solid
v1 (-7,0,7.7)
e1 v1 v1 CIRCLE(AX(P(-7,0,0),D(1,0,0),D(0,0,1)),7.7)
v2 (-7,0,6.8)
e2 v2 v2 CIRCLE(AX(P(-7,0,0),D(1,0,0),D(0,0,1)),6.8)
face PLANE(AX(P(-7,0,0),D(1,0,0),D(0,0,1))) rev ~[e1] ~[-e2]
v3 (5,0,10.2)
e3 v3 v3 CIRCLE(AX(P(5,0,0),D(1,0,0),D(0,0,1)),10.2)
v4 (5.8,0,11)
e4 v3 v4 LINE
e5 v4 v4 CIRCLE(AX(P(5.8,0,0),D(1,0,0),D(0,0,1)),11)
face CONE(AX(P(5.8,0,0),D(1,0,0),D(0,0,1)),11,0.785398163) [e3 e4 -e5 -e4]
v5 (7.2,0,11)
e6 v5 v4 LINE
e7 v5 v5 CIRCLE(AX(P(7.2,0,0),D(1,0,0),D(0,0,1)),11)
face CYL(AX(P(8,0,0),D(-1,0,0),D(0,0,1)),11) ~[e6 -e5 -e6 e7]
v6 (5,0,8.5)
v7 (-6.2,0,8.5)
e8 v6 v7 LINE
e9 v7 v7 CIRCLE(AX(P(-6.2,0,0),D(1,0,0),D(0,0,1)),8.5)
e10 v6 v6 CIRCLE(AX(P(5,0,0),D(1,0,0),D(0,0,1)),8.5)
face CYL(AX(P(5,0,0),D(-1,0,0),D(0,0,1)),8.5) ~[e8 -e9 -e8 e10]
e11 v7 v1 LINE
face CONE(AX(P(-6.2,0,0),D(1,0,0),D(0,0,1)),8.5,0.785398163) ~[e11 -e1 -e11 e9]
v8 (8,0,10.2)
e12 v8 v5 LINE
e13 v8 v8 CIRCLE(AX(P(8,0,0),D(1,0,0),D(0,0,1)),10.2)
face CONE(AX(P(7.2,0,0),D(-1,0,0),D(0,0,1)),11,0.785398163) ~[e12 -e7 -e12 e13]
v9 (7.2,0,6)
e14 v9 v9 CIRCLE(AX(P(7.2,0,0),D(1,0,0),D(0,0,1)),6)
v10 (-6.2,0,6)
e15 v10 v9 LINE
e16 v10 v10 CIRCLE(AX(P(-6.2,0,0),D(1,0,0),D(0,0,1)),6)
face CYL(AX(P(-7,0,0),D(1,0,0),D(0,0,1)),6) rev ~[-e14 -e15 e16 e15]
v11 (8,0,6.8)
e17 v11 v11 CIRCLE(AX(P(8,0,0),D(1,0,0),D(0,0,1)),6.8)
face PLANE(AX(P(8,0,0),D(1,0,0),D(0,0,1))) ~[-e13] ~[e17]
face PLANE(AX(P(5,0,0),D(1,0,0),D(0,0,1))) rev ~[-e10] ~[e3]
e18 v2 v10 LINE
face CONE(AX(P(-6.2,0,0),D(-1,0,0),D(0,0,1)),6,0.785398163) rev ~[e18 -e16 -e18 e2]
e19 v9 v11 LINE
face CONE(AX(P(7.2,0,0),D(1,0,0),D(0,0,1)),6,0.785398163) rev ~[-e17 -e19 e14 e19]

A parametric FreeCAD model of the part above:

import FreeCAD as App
import Part
import Sketcher
from FreeCAD import Vector


def edges_at(feature, points):
    """Names of the edges that pass closest to the given points."""
    edges = feature.Shape.Edges
    near = lambda p: min(range(len(edges)), key=lambda i: edges[i].distToShape(Part.Vertex(*p))[0])
    return sorted({f"Edge{near(p) + 1}" for p in points})


def add_polygon(sketch, points):
    """Adds a closed chain of lines whose ends are joined by coincident constraints."""
    first, n = sketch.GeometryCount, len(points)
    for a, b in zip(points, points[1:] + points[:1]):
        sketch.addGeometry(Part.LineSegment(App.Vector(*a, 0), App.Vector(*b, 0)), False)
    for i in range(n):
        sketch.addConstraint(Sketcher.Constraint("Coincident", first + i, 2, first + (i + 1) % n, 1))

doc = App.newDocument("Part")
body = doc.addObject("PartDesign::Body", "Body")

# Sketch on XZ plane
sketch1 = body.newObject("Sketcher::SketchObject", "Sketch")
sketch1.AttachmentSupport = (doc.getObject("XZ_Plane"), [""])
sketch1.MapMode = "FlatFace"
add_polygon(sketch1, [(8, 11), (5, 11), (5, 8.5), (-7, 8.5), (-7, 6), (8, 6)])  # lines 0-5
sketch1.addConstraint(Sketcher.Constraint("Horizontal", 0))
sketch1.addConstraint(Sketcher.Constraint("Vertical", 1))
sketch1.addConstraint(Sketcher.Constraint("Horizontal", 2))
sketch1.addConstraint(Sketcher.Constraint("Vertical", 3))
sketch1.addConstraint(Sketcher.Constraint("Horizontal", 4))
sketch1.addConstraint(Sketcher.Constraint("Vertical", 5))
sketch1.addConstraint(Sketcher.Constraint("Equal", 1, 3))
sketch1.addConstraint(Sketcher.Constraint("DistanceX", 2, 2, -1, 1, 7.0))
sketch1.addConstraint(Sketcher.Constraint("DistanceX", -1, 1, 4, 2, 8.0))
sketch1.addConstraint(Sketcher.Constraint("DistanceX", 0, 2, 0, 1, 3.0))
sketch1.addConstraint(Sketcher.Constraint("DistanceY", 5, 1, 5, 2, 5.0))
sketch1.addConstraint(Sketcher.Constraint("DistanceY", -1, 1, 0, 2, 11.0))
revolution = body.newObject("PartDesign::Revolution", "Revolution")
revolution.Profile = sketch1
revolution.ReferenceAxis = (sketch1, ["H_Axis"])
revolution.Angle = 360
doc.recompute()

chamfer = body.newObject("PartDesign::Chamfer", "Chamfer")
chamfer.Base = (revolution, edges_at(revolution, [
    (8, 0, -6),
    (8, 0, -11),
    (5, 0, -11),
    (-7, 0, -8.5),
    (-7, 0, -6),
]))
chamfer.Size = 0.8

doc.recompute()
